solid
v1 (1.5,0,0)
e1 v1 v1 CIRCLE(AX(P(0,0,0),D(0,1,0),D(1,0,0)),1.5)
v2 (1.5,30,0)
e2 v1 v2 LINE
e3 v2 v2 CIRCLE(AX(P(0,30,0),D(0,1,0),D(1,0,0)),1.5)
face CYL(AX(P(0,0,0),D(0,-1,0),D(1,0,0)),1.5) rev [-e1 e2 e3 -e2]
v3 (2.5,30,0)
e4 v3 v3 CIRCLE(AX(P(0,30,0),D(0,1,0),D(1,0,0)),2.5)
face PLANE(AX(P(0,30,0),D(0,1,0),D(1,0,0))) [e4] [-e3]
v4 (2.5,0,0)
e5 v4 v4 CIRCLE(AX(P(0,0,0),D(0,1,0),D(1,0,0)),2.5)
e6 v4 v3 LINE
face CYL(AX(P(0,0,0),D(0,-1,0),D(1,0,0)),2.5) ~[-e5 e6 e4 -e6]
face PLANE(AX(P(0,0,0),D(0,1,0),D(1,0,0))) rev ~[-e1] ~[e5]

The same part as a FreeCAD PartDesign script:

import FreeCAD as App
import Part
import Sketcher
Q = App.Units.Quantity

doc = App.newDocument("Part")
body = doc.addObject("PartDesign::Body", "Body")

# Sketch on XZ plane
sketch1 = body.newObject("Sketcher::SketchObject", "Sketch")
sketch1.AttachmentSupport = (doc.getObject("XZ_Plane"), [""])
sketch1.MapMode = "FlatFace"
sketch1.addGeometry([
    Part.Circle(App.Vector(0, 0, 0), App.Vector(0, 0, 1), 2.5),
    Part.Circle(App.Vector(0, 0, 0), App.Vector(0, 0, 1), 1.5),
], False)
sketch1.addConstraint([
    Sketcher.Constraint("Coincident", 0, 3, -1, 1),
    Sketcher.Constraint("Coincident", 1, 3, -1, 1),
    Sketcher.Constraint("Diameter", 0, Q("5 mm")),
    Sketcher.Constraint("Diameter", 1, Q("3 mm")),
])
pad1 = body.newObject("PartDesign::Pad", "Pad")
pad1.Profile = sketch1
pad1.Length = 30
pad1.Reversed = True

doc.recompute()
